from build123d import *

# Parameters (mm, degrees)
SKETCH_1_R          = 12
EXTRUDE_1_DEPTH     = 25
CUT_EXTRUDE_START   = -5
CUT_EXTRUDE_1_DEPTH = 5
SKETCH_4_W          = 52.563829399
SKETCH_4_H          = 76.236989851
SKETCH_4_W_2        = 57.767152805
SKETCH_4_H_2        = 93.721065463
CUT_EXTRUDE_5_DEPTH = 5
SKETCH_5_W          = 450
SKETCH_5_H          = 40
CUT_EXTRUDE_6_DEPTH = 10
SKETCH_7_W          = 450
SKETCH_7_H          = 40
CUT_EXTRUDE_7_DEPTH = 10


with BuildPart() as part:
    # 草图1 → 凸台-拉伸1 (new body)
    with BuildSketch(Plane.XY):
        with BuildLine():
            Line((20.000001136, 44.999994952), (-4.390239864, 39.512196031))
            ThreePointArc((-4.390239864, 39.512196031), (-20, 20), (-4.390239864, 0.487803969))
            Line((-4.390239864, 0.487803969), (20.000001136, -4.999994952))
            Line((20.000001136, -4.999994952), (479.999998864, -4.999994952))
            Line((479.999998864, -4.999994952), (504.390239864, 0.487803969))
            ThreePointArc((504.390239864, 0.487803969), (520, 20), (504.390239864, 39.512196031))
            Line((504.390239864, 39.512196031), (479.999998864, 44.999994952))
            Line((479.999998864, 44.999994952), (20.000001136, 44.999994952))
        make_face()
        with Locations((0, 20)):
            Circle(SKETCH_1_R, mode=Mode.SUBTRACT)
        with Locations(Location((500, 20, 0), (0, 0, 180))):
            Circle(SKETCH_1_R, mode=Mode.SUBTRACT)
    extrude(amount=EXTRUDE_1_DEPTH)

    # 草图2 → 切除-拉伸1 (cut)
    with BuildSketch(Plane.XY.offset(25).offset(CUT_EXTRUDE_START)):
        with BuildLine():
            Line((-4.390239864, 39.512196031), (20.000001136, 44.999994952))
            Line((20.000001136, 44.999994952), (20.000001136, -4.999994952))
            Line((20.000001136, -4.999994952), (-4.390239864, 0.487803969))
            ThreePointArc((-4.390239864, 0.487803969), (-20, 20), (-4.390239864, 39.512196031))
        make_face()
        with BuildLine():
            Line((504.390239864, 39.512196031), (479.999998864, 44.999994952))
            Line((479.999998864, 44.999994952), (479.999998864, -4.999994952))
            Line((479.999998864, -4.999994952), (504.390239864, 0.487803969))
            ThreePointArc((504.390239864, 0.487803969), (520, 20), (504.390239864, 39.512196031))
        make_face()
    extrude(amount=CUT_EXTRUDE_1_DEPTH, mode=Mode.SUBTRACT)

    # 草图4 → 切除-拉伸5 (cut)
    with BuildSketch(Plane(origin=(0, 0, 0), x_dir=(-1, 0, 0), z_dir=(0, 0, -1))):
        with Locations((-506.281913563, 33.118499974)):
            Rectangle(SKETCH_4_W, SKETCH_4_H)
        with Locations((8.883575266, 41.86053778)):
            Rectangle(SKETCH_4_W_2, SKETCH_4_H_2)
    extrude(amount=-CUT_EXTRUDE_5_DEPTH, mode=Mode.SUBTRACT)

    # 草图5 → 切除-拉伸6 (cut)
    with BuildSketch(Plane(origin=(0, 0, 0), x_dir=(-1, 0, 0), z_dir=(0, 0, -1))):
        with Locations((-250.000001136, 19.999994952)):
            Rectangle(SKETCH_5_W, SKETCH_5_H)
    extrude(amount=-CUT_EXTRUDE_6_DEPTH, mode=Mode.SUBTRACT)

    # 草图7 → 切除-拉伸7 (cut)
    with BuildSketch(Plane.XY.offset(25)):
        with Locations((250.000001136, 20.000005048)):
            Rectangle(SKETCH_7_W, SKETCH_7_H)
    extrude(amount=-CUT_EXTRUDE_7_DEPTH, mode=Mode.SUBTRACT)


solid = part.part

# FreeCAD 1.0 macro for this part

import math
import FreeCAD as App
import Part
import Sketcher


def add_polygon(sketch, points):
    """Adds a closed chain of lines whose ends are joined by coincident constraints."""
    first, n = sketch.GeometryCount, len(points)
    for a, b in zip(points, points[1:] + points[:1]):
        sketch.addGeometry(Part.LineSegment(App.Vector(*a, 0), App.Vector(*b, 0)), False)
    for i in range(n):
        sketch.addConstraint(Sketcher.Constraint("Coincident", first + i, 2, first + (i + 1) % n, 1))

doc = App.newDocument("Part")
body = doc.addObject("PartDesign::Body", "Body")

# Sketch on XY plane
sketch1 = body.newObject("Sketcher::SketchObject", "Sketch")
sketch1.AttachmentSupport = (doc.getObject("XY_Plane"), [""])
sketch1.MapMode = "FlatFace"
sketch1.addGeometry(Part.LineSegment(App.Vector(20, 45, 0), App.Vector(-4, 40, 0)), False)
sketch1.addGeometry(Part.ArcOfCircle(Part.Circle(App.Vector(0, 20, 0), App.Vector(0, 0, 1), 20), math.radians(103), math.radians(257)), False)
sketch1.addGeometry(Part.LineSegment(App.Vector(-4, 0, 0), App.Vector(20, -5, 0)), False)
sketch1.addGeometry(Part.LineSegment(App.Vector(20, -5, 0), App.Vector(480, -5, 0)), False)
sketch1.addGeometry(Part.LineSegment(App.Vector(480, -5, 0), App.Vector(504, 0, 0)), False)
sketch1.addGeometry(Part.ArcOfCircle(Part.Circle(App.Vector(500, 20, 0), App.Vector(0, 0, 1), 20), math.radians(-77), math.radians(77)), False)
sketch1.addGeometry(Part.LineSegment(App.Vector(504, 40, 0), App.Vector(480, 45, 0)), False)
sketch1.addGeometry(Part.LineSegment(App.Vector(480, 45, 0), App.Vector(20, 45, 0)), False)
sketch1.addGeometry(Part.Circle(App.Vector(0, 20, 0), App.Vector(0, 0, 1), 12), False)
sketch1.addGeometry(Part.Circle(App.Vector(500, 20, 0), App.Vector(0, 0, 1), 12), False)
sketch1.addConstraint(Sketcher.Constraint("Tangent", 0, 2, 1, 1))
sketch1.addConstraint(Sketcher.Constraint("Tangent", 1, 2, 2, 1))
sketch1.addConstraint(Sketcher.Constraint("Coincident", 2, 2, 3, 1))
sketch1.addConstraint(Sketcher.Constraint("Coincident", 3, 2, 4, 1))
sketch1.addConstraint(Sketcher.Constraint("Tangent", 4, 2, 5, 1))
sketch1.addConstraint(Sketcher.Constraint("Tangent", 5, 2, 6, 1))
sketch1.addConstraint(Sketcher.Constraint("Coincident", 6, 2, 7, 1))
sketch1.addConstraint(Sketcher.Constraint("Coincident", 7, 2, 0, 1))
sketch1.addConstraint(Sketcher.Constraint("Horizontal", 3))
sketch1.addConstraint(Sketcher.Constraint("Horizontal", 7))
sketch1.addConstraint(Sketcher.Constraint("Coincident", 8, 3, 1, 3))
sketch1.addConstraint(Sketcher.Constraint("Coincident", 9, 3, 5, 3))
sketch1.addConstraint(Sketcher.Constraint("Equal", 1, 5))
sketch1.addConstraint(Sketcher.Constraint("Equal", 8, 9))
sketch1.addConstraint(Sketcher.Constraint("PointOnObject", 1, 3, -2))
sketch1.addConstraint(Sketcher.Constraint("Parallel", 0, 4))
sketch1.addConstraint(Sketcher.Constraint("Parallel", 2, 6))
sketch1.addConstraint(Sketcher.Constraint("Horizontal", 1, 3, 5, 3))
sketch1.addConstraint(Sketcher.Constraint("Horizontal", 1, 2, 4, 2))
sketch1.addConstraint(Sketcher.Constraint("Vertical", 3, 2, 6, 2))
sketch1.addConstraint(Sketcher.Constraint("Diameter", 8, 24.0))
sketch1.addConstraint(Sketcher.Constraint("Radius", 1, 20.0))
sketch1.addConstraint(Sketcher.Constraint("DistanceY", -1, 1, 1, 3, 20.0))
sketch1.addConstraint(Sketcher.Constraint("DistanceX", -1, 1, 5, 3, 500.0))
sketch1.addConstraint(Sketcher.Constraint("DistanceX", -1, 1, 2, 2, 20.000001))
sketch1.addConstraint(Sketcher.Constraint("DistanceY", 2, 2, 1, 2, 5.487799))
pad1 = body.newObject("PartDesign::Pad", "Pad")
pad1.Profile = sketch1
pad1.Length = 25

# Sketch on XY plane
sketch2 = body.newObject("Sketcher::SketchObject", "Sketch001")
sketch2.AttachmentSupport = (doc.getObject("XY_Plane"), [""])
sketch2.MapMode = "FlatFace"
sketch2.AttachmentOffset = App.Placement(App.Vector(0, 0, 20), App.Rotation())
sketch2.addGeometry(Part.LineSegment(App.Vector(20, 45, 0), App.Vector(-4, 40, 0)), False)
sketch2.addGeometry(Part.ArcOfCircle(Part.Circle(App.Vector(0, 20, 0), App.Vector(0, 0, 1), 20), math.radians(103), math.radians(257)), False)
sketch2.addGeometry(Part.LineSegment(App.Vector(-4, 0, 0), App.Vector(20, -5, 0)), False)
sketch2.addGeometry(Part.LineSegment(App.Vector(20, -5, 0), App.Vector(20, 45, 0)), False)
sketch2.addGeometry(Part.LineSegment(App.Vector(504, 40, 0), App.Vector(480, 45, 0)), False)
sketch2.addGeometry(Part.LineSegment(App.Vector(480, 45, 0), App.Vector(480, -5, 0)), False)
sketch2.addGeometry(Part.LineSegment(App.Vector(480, -5, 0), App.Vector(504, 0, 0)), False)
sketch2.addGeometry(Part.ArcOfCircle(Part.Circle(App.Vector(500, 20, 0), App.Vector(0, 0, 1), 20), math.radians(-77), math.radians(77)), False)
sketch2.addConstraint(Sketcher.Constraint("Tangent", 0, 2, 1, 1))
sketch2.addConstraint(Sketcher.Constraint("Tangent", 1, 2, 2, 1))
sketch2.addConstraint(Sketcher.Constraint("Coincident", 2, 2, 3, 1))
sketch2.addConstraint(Sketcher.Constraint("Coincident", 3, 2, 0, 1))
sketch2.addConstraint(Sketcher.Constraint("Coincident", 4, 2, 5, 1))
sketch2.addConstraint(Sketcher.Constraint("Coincident", 5, 2, 6, 1))
sketch2.addConstraint(Sketcher.Constraint("Tangent", 6, 2, 7, 1))
sketch2.addConstraint(Sketcher.Constraint("Tangent", 7, 2, 4, 1))
sketch2.addConstraint(Sketcher.Constraint("Vertical", 3))
sketch2.addConstraint(Sketcher.Constraint("Vertical", 5))
sketch2.addConstraint(Sketcher.Constraint("Equal", 1, 7))
sketch2.addConstraint(Sketcher.Constraint("PointOnObject", 1, 3, -2))
sketch2.addConstraint(Sketcher.Constraint("Parallel", 2, 4))
sketch2.addConstraint(Sketcher.Constraint("Parallel", 0, 6))
sketch2.addConstraint(Sketcher.Constraint("Horizontal", 1, 3, 7, 3))
sketch2.addConstraint(Sketcher.Constraint("Horizontal", 3, 2, 4, 2))
sketch2.addConstraint(Sketcher.Constraint("Horizontal", 2, 2, 5, 2))
sketch2.addConstraint(Sketcher.Constraint("Radius", 1, 20.0))
sketch2.addConstraint(Sketcher.Constraint("DistanceY", -1, 1, 1, 3, 20.0))
sketch2.addConstraint(Sketcher.Constraint("DistanceX", -1, 1, 7, 3, 500.0))
sketch2.addConstraint(Sketcher.Constraint("DistanceX", -1, 1, 2, 2, 20.000001))
sketch2.addConstraint(Sketcher.Constraint("DistanceY", 3, 1, 3, 2, 49.99999))
pocket1 = body.newObject("PartDesign::Pocket", "Pocket")
pocket1.Profile = sketch2
pocket1.Length = 5
pocket1.Reversed = True

# Sketch on XY plane
sketch3 = body.newObject("Sketcher::SketchObject", "Sketch002")
sketch3.AttachmentSupport = (doc.getObject("XY_Plane"), [""])
sketch3.MapMode = "FlatFace"
add_polygon(sketch3, [(533, 71), (533, -5), (480, -5), (480, 71)])  # lines 0-3
add_polygon(sketch3, [(20, 89), (20, -5), (-38, -5), (-38, 89)])  # lines 4-7
sketch3.addConstraint(Sketcher.Constraint("Vertical", 0))
sketch3.addConstraint(Sketcher.Constraint("Horizontal", 1))
sketch3.addConstraint(Sketcher.Constraint("Vertical", 2))
sketch3.addConstraint(Sketcher.Constraint("Horizontal", 3))
sketch3.addConstraint(Sketcher.Constraint("Vertical", 4))
sketch3.addConstraint(Sketcher.Constraint("Horizontal", 5))
sketch3.addConstraint(Sketcher.Constraint("Vertical", 6))
sketch3.addConstraint(Sketcher.Constraint("Horizontal", 7))
sketch3.addConstraint(Sketcher.Constraint("Horizontal", 1, 2, 4, 2))
sketch3.addConstraint(Sketcher.Constraint("DistanceX", -1, 1, 1, 2, 479.999999))
sketch3.addConstraint(Sketcher.Constraint("DistanceX", -1, 1, 4, 2, 20.000001))
sketch3.addConstraint(Sketcher.Constraint("DistanceX", 1, 2, 1, 1, 52.563829))
sketch3.addConstraint(Sketcher.Constraint("DistanceY", 0, 2, 0, 1, 76.23699))
sketch3.addConstraint(Sketcher.Constraint("DistanceX", 5, 2, 5, 1, 57.767153))
sketch3.addConstraint(Sketcher.Constraint("DistanceY", 4, 2, 4, 1, 93.721065))
sketch3.addConstraint(Sketcher.Constraint("DistanceY", -1, 1, 6, 2, 88.721071))
pocket2 = body.newObject("PartDesign::Pocket", "Pocket001")
pocket2.Profile = sketch3
pocket2.Length = 5
pocket2.Reversed = True

# Sketch on XY plane
sketch4 = body.newObject("Sketcher::SketchObject", "Sketch003")
sketch4.AttachmentSupport = (doc.getObject("XY_Plane"), [""])
sketch4.MapMode = "FlatFace"
add_polygon(sketch4, [(475, 40), (475, 0), (25, 0), (25, 40)])  # lines 0-3
sketch4.addConstraint(Sketcher.Constraint("Vertical", 0))
sketch4.addConstraint(Sketcher.Constraint("Horizontal", 1))
sketch4.addConstraint(Sketcher.Constraint("Vertical", 2))
sketch4.addConstraint(Sketcher.Constraint("Horizontal", 3))
sketch4.addConstraint(Sketcher.Constraint("DistanceX", 1, 2, 1, 1, 450.0))
sketch4.addConstraint(Sketcher.Constraint("DistanceY", 0, 2, 0, 1, 40.0))
sketch4.addConstraint(Sketcher.Constraint("DistanceX", -1, 1, 0, 2, 475.000001))
sketch4.addConstraint(Sketcher.Constraint("DistanceY", -1, 1, 2, 2, 39.999995))
pocket3 = body.newObject("PartDesign::Pocket", "Pocket002")
pocket3.Profile = sketch4
pocket3.Length = 10
pocket3.Reversed = True

# Sketch on XY plane
sketch5 = body.newObject("Sketcher::SketchObject", "Sketch004")
sketch5.AttachmentSupport = (doc.getObject("XY_Plane"), [""])
sketch5.MapMode = "FlatFace"
sketch5.AttachmentOffset = App.Placement(App.Vector(0, 0, 25), App.Rotation())
add_polygon(sketch5, [(25, 40), (25, 0), (475, 0), (475, 40)])  # lines 0-3
sketch5.addConstraint(Sketcher.Constraint("Vertical", 0))
sketch5.addConstraint(Sketcher.Constraint("Horizontal", 1))
sketch5.addConstraint(Sketcher.Constraint("Vertical", 2))
sketch5.addConstraint(Sketcher.Constraint("Horizontal", 3))
sketch5.addConstraint(Sketcher.Constraint("DistanceX", 1, 1, 1, 2, 450.0))
sketch5.addConstraint(Sketcher.Constraint("DistanceY", 0, 2, 0, 1, 40.0))
sketch5.addConstraint(Sketcher.Constraint("DistanceX", -1, 1, 0, 2, 25.000001))
sketch5.addConstraint(Sketcher.Constraint("DistanceY", -1, 1, 2, 2, 40.000005))
pocket4 = body.newObject("PartDesign::Pocket", "Pocket003")
pocket4.Profile = sketch5
pocket4.Length = 10

doc.recompute()
